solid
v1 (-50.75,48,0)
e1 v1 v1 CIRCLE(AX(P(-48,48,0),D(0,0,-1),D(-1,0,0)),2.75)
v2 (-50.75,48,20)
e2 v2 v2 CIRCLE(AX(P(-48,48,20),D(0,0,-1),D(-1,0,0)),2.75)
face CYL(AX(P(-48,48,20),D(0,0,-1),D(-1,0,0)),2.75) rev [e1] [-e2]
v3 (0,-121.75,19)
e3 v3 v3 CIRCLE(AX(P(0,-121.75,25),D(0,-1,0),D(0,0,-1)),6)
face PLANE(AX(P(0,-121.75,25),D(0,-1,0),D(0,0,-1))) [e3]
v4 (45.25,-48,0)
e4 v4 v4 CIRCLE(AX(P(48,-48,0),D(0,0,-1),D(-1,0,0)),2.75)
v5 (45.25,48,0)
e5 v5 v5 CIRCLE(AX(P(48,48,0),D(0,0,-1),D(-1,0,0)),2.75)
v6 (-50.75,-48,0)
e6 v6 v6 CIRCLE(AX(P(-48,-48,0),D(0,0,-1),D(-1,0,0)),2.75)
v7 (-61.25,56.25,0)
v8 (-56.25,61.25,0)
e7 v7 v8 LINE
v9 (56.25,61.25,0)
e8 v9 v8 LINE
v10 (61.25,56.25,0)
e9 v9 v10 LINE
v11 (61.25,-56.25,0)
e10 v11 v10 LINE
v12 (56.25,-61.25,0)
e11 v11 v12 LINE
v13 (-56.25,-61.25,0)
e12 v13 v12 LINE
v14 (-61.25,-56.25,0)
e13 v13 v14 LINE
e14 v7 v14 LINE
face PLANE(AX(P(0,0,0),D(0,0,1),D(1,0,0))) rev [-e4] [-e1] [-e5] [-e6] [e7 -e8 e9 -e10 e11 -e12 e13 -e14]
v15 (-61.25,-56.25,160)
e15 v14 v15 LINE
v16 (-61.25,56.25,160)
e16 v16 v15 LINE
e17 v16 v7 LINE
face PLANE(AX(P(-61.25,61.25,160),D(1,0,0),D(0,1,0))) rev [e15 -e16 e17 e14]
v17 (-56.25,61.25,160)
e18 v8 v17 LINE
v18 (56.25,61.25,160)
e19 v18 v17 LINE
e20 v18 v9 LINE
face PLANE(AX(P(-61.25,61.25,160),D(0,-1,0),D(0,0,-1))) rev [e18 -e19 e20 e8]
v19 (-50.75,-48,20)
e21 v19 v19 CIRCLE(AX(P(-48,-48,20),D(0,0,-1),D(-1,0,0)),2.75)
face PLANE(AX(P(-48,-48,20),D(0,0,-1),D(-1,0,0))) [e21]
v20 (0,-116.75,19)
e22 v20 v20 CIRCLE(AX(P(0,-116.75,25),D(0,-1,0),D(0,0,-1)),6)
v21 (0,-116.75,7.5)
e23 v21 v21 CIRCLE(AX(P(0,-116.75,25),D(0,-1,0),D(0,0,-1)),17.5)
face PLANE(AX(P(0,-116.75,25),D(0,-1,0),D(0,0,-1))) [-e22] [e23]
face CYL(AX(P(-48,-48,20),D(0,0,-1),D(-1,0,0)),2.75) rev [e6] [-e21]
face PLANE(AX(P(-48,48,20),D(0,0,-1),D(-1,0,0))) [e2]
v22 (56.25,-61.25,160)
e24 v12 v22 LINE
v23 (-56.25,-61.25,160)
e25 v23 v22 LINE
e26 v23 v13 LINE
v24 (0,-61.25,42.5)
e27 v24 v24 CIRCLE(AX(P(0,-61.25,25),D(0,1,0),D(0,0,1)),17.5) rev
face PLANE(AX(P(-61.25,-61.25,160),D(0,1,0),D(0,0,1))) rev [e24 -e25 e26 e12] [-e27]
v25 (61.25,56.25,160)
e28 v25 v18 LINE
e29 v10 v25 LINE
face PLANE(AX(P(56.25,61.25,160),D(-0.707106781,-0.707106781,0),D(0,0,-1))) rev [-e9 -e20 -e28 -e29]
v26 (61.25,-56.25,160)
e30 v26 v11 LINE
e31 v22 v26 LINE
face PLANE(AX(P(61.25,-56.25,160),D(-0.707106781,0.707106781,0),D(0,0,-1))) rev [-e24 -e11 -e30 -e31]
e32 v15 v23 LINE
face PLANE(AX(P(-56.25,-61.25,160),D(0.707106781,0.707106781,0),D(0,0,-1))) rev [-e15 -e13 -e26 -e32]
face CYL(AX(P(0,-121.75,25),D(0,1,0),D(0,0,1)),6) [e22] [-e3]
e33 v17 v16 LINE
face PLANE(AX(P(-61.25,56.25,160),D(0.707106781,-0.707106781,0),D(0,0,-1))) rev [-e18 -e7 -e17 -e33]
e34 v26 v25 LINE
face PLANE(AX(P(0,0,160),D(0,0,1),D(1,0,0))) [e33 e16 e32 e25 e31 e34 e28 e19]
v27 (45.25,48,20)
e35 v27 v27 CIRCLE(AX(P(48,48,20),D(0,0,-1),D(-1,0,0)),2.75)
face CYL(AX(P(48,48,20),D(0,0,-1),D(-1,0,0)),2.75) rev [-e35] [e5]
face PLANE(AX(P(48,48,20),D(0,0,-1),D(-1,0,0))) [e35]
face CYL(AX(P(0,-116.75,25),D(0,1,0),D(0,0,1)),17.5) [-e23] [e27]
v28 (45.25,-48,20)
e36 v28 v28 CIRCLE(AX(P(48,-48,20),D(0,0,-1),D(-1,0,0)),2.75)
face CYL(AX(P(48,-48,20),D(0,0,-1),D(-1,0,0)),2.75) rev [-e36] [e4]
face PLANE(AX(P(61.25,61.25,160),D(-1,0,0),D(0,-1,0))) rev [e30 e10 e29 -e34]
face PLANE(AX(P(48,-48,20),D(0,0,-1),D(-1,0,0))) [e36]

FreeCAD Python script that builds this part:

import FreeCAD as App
import Part
import Sketcher
Q = App.Units.Quantity


def edges_at(feature, points):
    """Names of the edges that pass closest to the given points."""
    edges = feature.Shape.Edges
    near = lambda p: min(range(len(edges)), key=lambda i: edges[i].distToShape(Part.Vertex(*p))[0])
    return sorted({f"Edge{near(p) + 1}" for p in points})


def add_polygon(sketch, points):
    """Adds a closed chain of lines whose ends are joined by coincident constraints."""
    first, n = sketch.GeometryCount, len(points)
    for a, b in zip(points, points[1:] + points[:1]):
        sketch.addGeometry(Part.LineSegment(App.Vector(*a, 0), App.Vector(*b, 0)), False)
    for i in range(n):
        sketch.addConstraint(Sketcher.Constraint("Coincident", first + i, 2, first + (i + 1) % n, 1))

doc = App.newDocument("Part")
body = doc.addObject("PartDesign::Body", "Body")

# Sketch on XY plane
sketch1 = body.newObject("Sketcher::SketchObject", "Sketch")
sketch1.AttachmentSupport = (doc.getObject("XY_Plane"), [""])
sketch1.MapMode = "FlatFace"
add_polygon(sketch1, [(-61, 61), (-61, -61), (61, -61), (61, 61)])  # lines 0-3
sketch1.addConstraint([
    Sketcher.Constraint("Vertical", 0),
    Sketcher.Constraint("Horizontal", 1),
    Sketcher.Constraint("Vertical", 2),
    Sketcher.Constraint("Horizontal", 3),
    Sketcher.Constraint("Symmetric", 0, 2, 2, 2, -1, 1),
    Sketcher.Constraint("Equal", 3, 0),
    Sketcher.Constraint("DistanceX", 1, 1, 1, 2, Q("122.5 mm")),
])
pad1 = body.newObject("PartDesign::Pad", "Pad")
pad1.Profile = sketch1
pad1.Length = 160

# Sketch on XZ plane
sketch2 = body.newObject("Sketcher::SketchObject", "Sketch001")
sketch2.AttachmentSupport = (doc.getObject("XZ_Plane"), [""])
sketch2.MapMode = "FlatFace"
sketch2.AttachmentOffset = App.Placement(App.Vector(0, 0, 61.25), App.Rotation())
sketch2.addGeometry(Part.Circle(App.Vector(0, 25, 0), App.Vector(0, 0, 1), 18), False)
sketch2.addConstraint([
    Sketcher.Constraint("PointOnObject", 0, 3, -2),
    Sketcher.Constraint("Diameter", 0, Q("35 mm")),
    Sketcher.Constraint("DistanceY", -1, 1, 0, 3, Q("25 mm")),
])
pad2 = body.newObject("PartDesign::Pad", "Pad001")
pad2.Profile = sketch2
pad2.Length = 55.5

# Sketch on XZ plane
sketch3 = body.newObject("Sketcher::SketchObject", "Sketch002")
sketch3.AttachmentSupport = (doc.getObject("XZ_Plane"), [""])
sketch3.MapMode = "FlatFace"
sketch3.AttachmentOffset = App.Placement(App.Vector(0, 0, 116.75), App.Rotation())
sketch3.addGeometry(Part.Circle(App.Vector(0, 25, 0), App.Vector(0, 0, 1), 6), False)
sketch3.addConstraint([
    Sketcher.Constraint("PointOnObject", 0, 3, -2),
    Sketcher.Constraint("Diameter", 0, Q("12 mm")),
    Sketcher.Constraint("DistanceY", -1, 1, 0, 3, Q("25 mm")),
])
pad3 = body.newObject("PartDesign::Pad", "Pad002")
pad3.Profile = sketch3
pad3.Length = 5
doc.recompute()

chamfer = body.newObject("PartDesign::Chamfer", "Chamfer")
chamfer.Base = (pad3, edges_at(pad3, [
    (-61.25, 61.25, 80),
    (61.25, 61.25, 80),
    (61.25, -61.25, 80),
    (-61.25, -61.25, 80),
]))
chamfer.Size = 5

# Sketch on XY plane
sketch4 = body.newObject("Sketcher::SketchObject", "Sketch003")
sketch4.AttachmentSupport = (doc.getObject("XY_Plane"), [""])
sketch4.MapMode = "FlatFace"
sketch4.addGeometry([
    Part.Circle(App.Vector(48, 48, 0), App.Vector(0, 0, 1), 2.8),
    Part.Circle(App.Vector(-48, 48, 0), App.Vector(0, 0, 1), 2.8),
    Part.Circle(App.Vector(-48, -48, 0), App.Vector(0, 0, 1), 2.8),
    Part.Circle(App.Vector(48, -48, 0), App.Vector(0, 0, 1), 2.8),
], False)
sketch4.addConstraint([
    Sketcher.Constraint("Equal", 0, 1),
    Sketcher.Constraint("Equal", 1, 2),
    Sketcher.Constraint("Equal", 2, 3),
    Sketcher.Constraint("Symmetric", 0, 3, 2, 3, -1, 1),
    Sketcher.Constraint("Symmetric", 1, 3, 3, 3, -1, 1),
    Sketcher.Constraint("Symmetric", 0, 3, 1, 3, -2),
    Sketcher.Constraint("Diameter", 0, Q("5.5 mm")),
    Sketcher.Constraint("DistanceX", -1, 1, 0, 3, Q("48 mm")),
    Sketcher.Constraint("DistanceY", -1, 1, 0, 3, Q("48 mm")),
])
pocket1 = body.newObject("PartDesign::Pocket", "Pocket")
pocket1.Profile = sketch4
pocket1.Length = 20
pocket1.Reversed = True

doc.recompute()
